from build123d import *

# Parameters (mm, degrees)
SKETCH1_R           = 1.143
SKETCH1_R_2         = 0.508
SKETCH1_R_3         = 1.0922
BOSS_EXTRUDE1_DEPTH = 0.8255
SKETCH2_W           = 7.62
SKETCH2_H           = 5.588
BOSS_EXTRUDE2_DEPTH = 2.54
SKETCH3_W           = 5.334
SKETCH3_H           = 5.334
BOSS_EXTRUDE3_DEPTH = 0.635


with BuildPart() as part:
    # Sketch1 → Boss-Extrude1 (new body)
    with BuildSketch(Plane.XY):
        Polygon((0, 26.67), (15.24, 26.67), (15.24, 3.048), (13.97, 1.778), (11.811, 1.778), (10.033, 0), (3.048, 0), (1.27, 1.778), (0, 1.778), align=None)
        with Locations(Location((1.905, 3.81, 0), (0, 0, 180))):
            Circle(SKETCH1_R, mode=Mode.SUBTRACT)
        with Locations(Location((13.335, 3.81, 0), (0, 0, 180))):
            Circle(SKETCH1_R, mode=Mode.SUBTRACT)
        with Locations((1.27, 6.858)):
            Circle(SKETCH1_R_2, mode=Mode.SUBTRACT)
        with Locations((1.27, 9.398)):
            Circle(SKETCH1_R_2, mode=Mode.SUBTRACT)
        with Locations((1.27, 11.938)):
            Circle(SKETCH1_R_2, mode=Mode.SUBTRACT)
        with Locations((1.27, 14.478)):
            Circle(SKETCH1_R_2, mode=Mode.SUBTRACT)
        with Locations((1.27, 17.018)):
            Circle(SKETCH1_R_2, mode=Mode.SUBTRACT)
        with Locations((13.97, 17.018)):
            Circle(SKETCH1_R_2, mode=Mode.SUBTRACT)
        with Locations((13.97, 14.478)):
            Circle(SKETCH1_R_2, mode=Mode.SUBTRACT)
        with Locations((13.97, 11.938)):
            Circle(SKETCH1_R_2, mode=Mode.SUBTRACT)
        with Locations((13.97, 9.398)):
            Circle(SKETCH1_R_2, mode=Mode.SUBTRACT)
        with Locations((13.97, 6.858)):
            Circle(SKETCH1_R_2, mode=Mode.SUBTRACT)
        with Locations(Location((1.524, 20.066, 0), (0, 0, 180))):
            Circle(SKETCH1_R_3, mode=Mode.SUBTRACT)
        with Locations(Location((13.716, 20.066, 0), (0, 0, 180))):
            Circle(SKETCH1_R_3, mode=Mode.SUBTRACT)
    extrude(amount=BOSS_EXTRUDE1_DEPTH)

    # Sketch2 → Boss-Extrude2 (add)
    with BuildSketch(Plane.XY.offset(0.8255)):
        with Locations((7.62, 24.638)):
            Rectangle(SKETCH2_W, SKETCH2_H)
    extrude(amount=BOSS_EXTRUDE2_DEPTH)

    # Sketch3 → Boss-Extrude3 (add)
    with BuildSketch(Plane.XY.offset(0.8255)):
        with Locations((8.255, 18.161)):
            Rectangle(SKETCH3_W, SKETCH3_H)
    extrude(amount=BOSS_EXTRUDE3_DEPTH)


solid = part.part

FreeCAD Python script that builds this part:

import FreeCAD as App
import Part
import Sketcher
Q = App.Units.Quantity


def add_polygon(sketch, points):
    """Adds a closed chain of lines whose ends are joined by coincident constraints."""
    first, n = sketch.GeometryCount, len(points)
    for a, b in zip(points, points[1:] + points[:1]):
        sketch.addGeometry(Part.LineSegment(App.Vector(*a, 0), App.Vector(*b, 0)), False)
    for i in range(n):
        sketch.addConstraint(Sketcher.Constraint("Coincident", first + i, 2, first + (i + 1) % n, 1))

doc = App.newDocument("Part")
body = doc.addObject("PartDesign::Body", "Body")

# Sketch on XY plane
sketch1 = body.newObject("Sketcher::SketchObject", "Sketch")
sketch1.AttachmentSupport = (doc.getObject("XY_Plane"), [""])
sketch1.MapMode = "FlatFace"
add_polygon(sketch1, [(15.24, 26.67), (0, 26.67), (0, 1.778), (1.27, 1.778), (3.048, 0), (10.033, 0), (11.811, 1.778), (13.97, 1.778), (15.24, 3.048)])  # lines 0-8
sketch1.addGeometry(Part.Circle(App.Vector(13.335, 3.81, 0), App.Vector(0, 0, 1), 1.143), False)  # 9
sketch1.addGeometry(Part.Circle(App.Vector(13.97, 6.858, 0), App.Vector(0, 0, 1), 0.508), False)  # 10
sketch1.addGeometry(Part.Circle(App.Vector(13.97, 9.398, 0), App.Vector(0, 0, 1), 0.508), False)  # 11
sketch1.addGeometry(Part.Circle(App.Vector(1.905, 3.81, 0), App.Vector(0, 0, 1), 1.143), False)  # 12
sketch1.addGeometry(Part.Circle(App.Vector(1.27, 6.858, 0), App.Vector(0, 0, 1), 0.508), False)  # 13
sketch1.addGeometry(Part.Circle(App.Vector(1.27, 9.398, 0), App.Vector(0, 0, 1), 0.508), False)  # 14
sketch1.addGeometry(Part.Circle(App.Vector(13.97, 11.938, 0), App.Vector(0, 0, 1), 0.508), False)  # 15
sketch1.addGeometry(Part.Circle(App.Vector(13.97, 14.478, 0), App.Vector(0, 0, 1), 0.508), False)  # 16
sketch1.addGeometry(Part.Circle(App.Vector(13.97, 17.018, 0), App.Vector(0, 0, 1), 0.508), False)  # 17
sketch1.addGeometry(Part.Circle(App.Vector(13.716, 20.066, 0), App.Vector(0, 0, 1), 1.0922), False)  # 18
sketch1.addGeometry(Part.Circle(App.Vector(1.27, 11.938, 0), App.Vector(0, 0, 1), 0.508), False)  # 19
sketch1.addGeometry(Part.Circle(App.Vector(1.27, 14.478, 0), App.Vector(0, 0, 1), 0.508), False)  # 20
sketch1.addGeometry(Part.Circle(App.Vector(1.27, 17.018, 0), App.Vector(0, 0, 1), 0.508), False)  # 21
sketch1.addGeometry(Part.Circle(App.Vector(1.524, 20.066, 0), App.Vector(0, 0, 1), 1.0922), False)  # 22
sketch1.addConstraint([
    Sketcher.Constraint("Horizontal", 0),
    Sketcher.Constraint("Vertical", 1),
    Sketcher.Constraint("Horizontal", 2),
    Sketcher.Constraint("Horizontal", 4),
    Sketcher.Constraint("Horizontal", 6),
    Sketcher.Constraint("Vertical", 8),
    Sketcher.Constraint("Equal", 10, 11),
    Sketcher.Constraint("Equal", 9, 12),
    Sketcher.Constraint("Equal", 11, 13),
    Sketcher.Constraint("Equal", 13, 14),
    Sketcher.Constraint("Equal", 14, 15),
    Sketcher.Constraint("Equal", 15, 16),
    Sketcher.Constraint("Equal", 16, 17),
    Sketcher.Constraint("Equal", 17, 19),
    Sketcher.Constraint("Equal", 19, 20),
    Sketcher.Constraint("Equal", 20, 21),
    Sketcher.Constraint("Equal", 18, 22),
    Sketcher.Constraint("PointOnObject", 0, 2, -2),
    Sketcher.Constraint("PointOnObject", 3, 2, -1),
    Sketcher.Constraint("Perpendicular", 3, 5),
    Sketcher.Constraint("Parallel", 5, 7),
    Sketcher.Constraint("Horizontal", 9, 3, 12, 3),
    Sketcher.Constraint("Horizontal", 10, 3, 13, 3),
    Sketcher.Constraint("Horizontal", 11, 3, 14, 3),
    Sketcher.Constraint("Horizontal", 15, 3, 19, 3),
    Sketcher.Constraint("Horizontal", 16, 3, 20, 3),
    Sketcher.Constraint("Horizontal", 17, 3, 21, 3),
    Sketcher.Constraint("Horizontal", 18, 3, 22, 3),
    Sketcher.Constraint("Horizontal", 2, 2, 5, 2),
    Sketcher.Constraint("Vertical", 10, 3, 11, 3),
    Sketcher.Constraint("Vertical", 13, 3, 14, 3),
    Sketcher.Constraint("Vertical", 11, 3, 15, 3),
    Sketcher.Constraint("Vertical", 15, 3, 16, 3),
    Sketcher.Constraint("Vertical", 16, 3, 17, 3),
    Sketcher.Constraint("Vertical", 14, 3, 19, 3),
    Sketcher.Constraint("Vertical", 19, 3, 20, 3),
    Sketcher.Constraint("Vertical", 20, 3, 21, 3),
    Sketcher.Constraint("Vertical", 21, 3, 2, 2),
    Sketcher.Constraint("Vertical", 17, 3, 6, 2),
    Sketcher.Constraint("Equal", 3, 5),
    Sketcher.Constraint("Diameter", 9, Q("0.09 in")),
    Sketcher.Constraint("Diameter", 10, Q("0.04 in")),
    Sketcher.Constraint("Diameter", 18, Q("0.086 in")),
    Sketcher.Constraint("DistanceX", 0, 2, 0, 1, Q("0.6 in")),
    Sketcher.Constraint("DistanceX", 2, 1, 2, 2, Q("0.05 in")),
    Sketcher.Constraint("DistanceY", 1, 2, 1, 1, Q("0.98 in")),
    Sketcher.Constraint("DistanceY", 8, 1, 8, 2, Q("0.93 in")),
    Sketcher.Constraint("DistanceY", 10, 3, 11, 3, Q("0.1 in")),
    Sketcher.Constraint("DistanceY", 11, 3, 15, 3, Q("0.1 in")),
    Sketcher.Constraint("DistanceY", 15, 3, 16, 3, Q("0.1 in")),
    Sketcher.Constraint("DistanceY", 16, 3, 17, 3, Q("0.1 in")),
    Sketcher.Constraint("DistanceY", 1, 2, 13, 3, Q("0.2 in")),
    Sketcher.Constraint("DistanceX", 4, 1, 4, 2, Q("0.275 in")),
    Sketcher.Constraint("DistanceX", 6, 1, 6, 2, Q("0.085 in")),
    Sketcher.Constraint("DistanceY", -1, 1, 9, 3, Q("0.15 in")),
    Sketcher.Constraint("DistanceX", -1, 1, 18, 3, Q("0.54 in")),
    Sketcher.Constraint("DistanceY", -1, 1, 18, 3, Q("0.79 in")),
    Sketcher.Constraint("DistanceX", -1, 1, 22, 3, Q("0.06 in")),
    Sketcher.Constraint("DistanceX", 12, 3, 9, 3, Q("0.45 in")),
    Sketcher.Constraint("DistanceX", 4, 2, 9, 3, Q("0.13 in")),
])
pad1 = body.newObject("PartDesign::Pad", "Pad")
pad1.Profile = sketch1
pad1.Length = Q("0.0325 in")

# Sketch on XY plane
sketch2 = body.newObject("Sketcher::SketchObject", "Sketch001")
sketch2.AttachmentSupport = (doc.getObject("XY_Plane"), [""])
sketch2.MapMode = "FlatFace"
sketch2.AttachmentOffset = App.Placement(App.Vector(0, 0, 0.0325 * 25.4), App.Rotation())
add_polygon(sketch2, [(3.81, 27.432), (3.81, 21.844), (11.43, 21.844), (11.43, 27.432)])  # lines 0-3
sketch2.addConstraint([
    Sketcher.Constraint("Vertical", 0),
    Sketcher.Constraint("Horizontal", 1),
    Sketcher.Constraint("Vertical", 2),
    Sketcher.Constraint("Horizontal", 3),
    Sketcher.Constraint("DistanceX", 1, 1, 1, 2, Q("0.3 in")),
    Sketcher.Constraint("DistanceY", 0, 2, 0, 1, Q("0.22 in")),
    Sketcher.Constraint("DistanceX", -1, 1, 0, 2, Q("0.15 in")),
    Sketcher.Constraint("DistanceY", -1, 1, 0, 2, Q("0.86 in")),
])
pad2 = body.newObject("PartDesign::Pad", "Pad001")
pad2.Profile = sketch2
pad2.Length = Q("0.1 in")

# Sketch on XY plane
sketch3 = body.newObject("Sketcher::SketchObject", "Sketch002")
sketch3.AttachmentSupport = (doc.getObject("XY_Plane"), [""])
sketch3.MapMode = "FlatFace"
sketch3.AttachmentOffset = App.Placement(App.Vector(0, 0, 0.0325 * 25.4), App.Rotation())
add_polygon(sketch3, [(5.588, 20.828), (5.588, 15.494), (10.922, 15.494), (10.922, 20.828)])  # lines 0-3
sketch3.addConstraint([
    Sketcher.Constraint("Vertical", 0),
    Sketcher.Constraint("Horizontal", 1),
    Sketcher.Constraint("Vertical", 2),
    Sketcher.Constraint("Horizontal", 3),
    Sketcher.Constraint("Equal", 3, 0),
    Sketcher.Constraint("DistanceX", 1, 1, 1, 2, Q("0.21 in")),
    Sketcher.Constraint("DistanceX", -1, 1, 0, 2, Q("0.22 in")),
    Sketcher.Constraint("DistanceY", -1, 1, 0, 2, Q("0.61 in")),
])
pad3 = body.newObject("PartDesign::Pad", "Pad002")
pad3.Profile = sketch3
pad3.Length = Q("0.025 in")

doc.recompute()
